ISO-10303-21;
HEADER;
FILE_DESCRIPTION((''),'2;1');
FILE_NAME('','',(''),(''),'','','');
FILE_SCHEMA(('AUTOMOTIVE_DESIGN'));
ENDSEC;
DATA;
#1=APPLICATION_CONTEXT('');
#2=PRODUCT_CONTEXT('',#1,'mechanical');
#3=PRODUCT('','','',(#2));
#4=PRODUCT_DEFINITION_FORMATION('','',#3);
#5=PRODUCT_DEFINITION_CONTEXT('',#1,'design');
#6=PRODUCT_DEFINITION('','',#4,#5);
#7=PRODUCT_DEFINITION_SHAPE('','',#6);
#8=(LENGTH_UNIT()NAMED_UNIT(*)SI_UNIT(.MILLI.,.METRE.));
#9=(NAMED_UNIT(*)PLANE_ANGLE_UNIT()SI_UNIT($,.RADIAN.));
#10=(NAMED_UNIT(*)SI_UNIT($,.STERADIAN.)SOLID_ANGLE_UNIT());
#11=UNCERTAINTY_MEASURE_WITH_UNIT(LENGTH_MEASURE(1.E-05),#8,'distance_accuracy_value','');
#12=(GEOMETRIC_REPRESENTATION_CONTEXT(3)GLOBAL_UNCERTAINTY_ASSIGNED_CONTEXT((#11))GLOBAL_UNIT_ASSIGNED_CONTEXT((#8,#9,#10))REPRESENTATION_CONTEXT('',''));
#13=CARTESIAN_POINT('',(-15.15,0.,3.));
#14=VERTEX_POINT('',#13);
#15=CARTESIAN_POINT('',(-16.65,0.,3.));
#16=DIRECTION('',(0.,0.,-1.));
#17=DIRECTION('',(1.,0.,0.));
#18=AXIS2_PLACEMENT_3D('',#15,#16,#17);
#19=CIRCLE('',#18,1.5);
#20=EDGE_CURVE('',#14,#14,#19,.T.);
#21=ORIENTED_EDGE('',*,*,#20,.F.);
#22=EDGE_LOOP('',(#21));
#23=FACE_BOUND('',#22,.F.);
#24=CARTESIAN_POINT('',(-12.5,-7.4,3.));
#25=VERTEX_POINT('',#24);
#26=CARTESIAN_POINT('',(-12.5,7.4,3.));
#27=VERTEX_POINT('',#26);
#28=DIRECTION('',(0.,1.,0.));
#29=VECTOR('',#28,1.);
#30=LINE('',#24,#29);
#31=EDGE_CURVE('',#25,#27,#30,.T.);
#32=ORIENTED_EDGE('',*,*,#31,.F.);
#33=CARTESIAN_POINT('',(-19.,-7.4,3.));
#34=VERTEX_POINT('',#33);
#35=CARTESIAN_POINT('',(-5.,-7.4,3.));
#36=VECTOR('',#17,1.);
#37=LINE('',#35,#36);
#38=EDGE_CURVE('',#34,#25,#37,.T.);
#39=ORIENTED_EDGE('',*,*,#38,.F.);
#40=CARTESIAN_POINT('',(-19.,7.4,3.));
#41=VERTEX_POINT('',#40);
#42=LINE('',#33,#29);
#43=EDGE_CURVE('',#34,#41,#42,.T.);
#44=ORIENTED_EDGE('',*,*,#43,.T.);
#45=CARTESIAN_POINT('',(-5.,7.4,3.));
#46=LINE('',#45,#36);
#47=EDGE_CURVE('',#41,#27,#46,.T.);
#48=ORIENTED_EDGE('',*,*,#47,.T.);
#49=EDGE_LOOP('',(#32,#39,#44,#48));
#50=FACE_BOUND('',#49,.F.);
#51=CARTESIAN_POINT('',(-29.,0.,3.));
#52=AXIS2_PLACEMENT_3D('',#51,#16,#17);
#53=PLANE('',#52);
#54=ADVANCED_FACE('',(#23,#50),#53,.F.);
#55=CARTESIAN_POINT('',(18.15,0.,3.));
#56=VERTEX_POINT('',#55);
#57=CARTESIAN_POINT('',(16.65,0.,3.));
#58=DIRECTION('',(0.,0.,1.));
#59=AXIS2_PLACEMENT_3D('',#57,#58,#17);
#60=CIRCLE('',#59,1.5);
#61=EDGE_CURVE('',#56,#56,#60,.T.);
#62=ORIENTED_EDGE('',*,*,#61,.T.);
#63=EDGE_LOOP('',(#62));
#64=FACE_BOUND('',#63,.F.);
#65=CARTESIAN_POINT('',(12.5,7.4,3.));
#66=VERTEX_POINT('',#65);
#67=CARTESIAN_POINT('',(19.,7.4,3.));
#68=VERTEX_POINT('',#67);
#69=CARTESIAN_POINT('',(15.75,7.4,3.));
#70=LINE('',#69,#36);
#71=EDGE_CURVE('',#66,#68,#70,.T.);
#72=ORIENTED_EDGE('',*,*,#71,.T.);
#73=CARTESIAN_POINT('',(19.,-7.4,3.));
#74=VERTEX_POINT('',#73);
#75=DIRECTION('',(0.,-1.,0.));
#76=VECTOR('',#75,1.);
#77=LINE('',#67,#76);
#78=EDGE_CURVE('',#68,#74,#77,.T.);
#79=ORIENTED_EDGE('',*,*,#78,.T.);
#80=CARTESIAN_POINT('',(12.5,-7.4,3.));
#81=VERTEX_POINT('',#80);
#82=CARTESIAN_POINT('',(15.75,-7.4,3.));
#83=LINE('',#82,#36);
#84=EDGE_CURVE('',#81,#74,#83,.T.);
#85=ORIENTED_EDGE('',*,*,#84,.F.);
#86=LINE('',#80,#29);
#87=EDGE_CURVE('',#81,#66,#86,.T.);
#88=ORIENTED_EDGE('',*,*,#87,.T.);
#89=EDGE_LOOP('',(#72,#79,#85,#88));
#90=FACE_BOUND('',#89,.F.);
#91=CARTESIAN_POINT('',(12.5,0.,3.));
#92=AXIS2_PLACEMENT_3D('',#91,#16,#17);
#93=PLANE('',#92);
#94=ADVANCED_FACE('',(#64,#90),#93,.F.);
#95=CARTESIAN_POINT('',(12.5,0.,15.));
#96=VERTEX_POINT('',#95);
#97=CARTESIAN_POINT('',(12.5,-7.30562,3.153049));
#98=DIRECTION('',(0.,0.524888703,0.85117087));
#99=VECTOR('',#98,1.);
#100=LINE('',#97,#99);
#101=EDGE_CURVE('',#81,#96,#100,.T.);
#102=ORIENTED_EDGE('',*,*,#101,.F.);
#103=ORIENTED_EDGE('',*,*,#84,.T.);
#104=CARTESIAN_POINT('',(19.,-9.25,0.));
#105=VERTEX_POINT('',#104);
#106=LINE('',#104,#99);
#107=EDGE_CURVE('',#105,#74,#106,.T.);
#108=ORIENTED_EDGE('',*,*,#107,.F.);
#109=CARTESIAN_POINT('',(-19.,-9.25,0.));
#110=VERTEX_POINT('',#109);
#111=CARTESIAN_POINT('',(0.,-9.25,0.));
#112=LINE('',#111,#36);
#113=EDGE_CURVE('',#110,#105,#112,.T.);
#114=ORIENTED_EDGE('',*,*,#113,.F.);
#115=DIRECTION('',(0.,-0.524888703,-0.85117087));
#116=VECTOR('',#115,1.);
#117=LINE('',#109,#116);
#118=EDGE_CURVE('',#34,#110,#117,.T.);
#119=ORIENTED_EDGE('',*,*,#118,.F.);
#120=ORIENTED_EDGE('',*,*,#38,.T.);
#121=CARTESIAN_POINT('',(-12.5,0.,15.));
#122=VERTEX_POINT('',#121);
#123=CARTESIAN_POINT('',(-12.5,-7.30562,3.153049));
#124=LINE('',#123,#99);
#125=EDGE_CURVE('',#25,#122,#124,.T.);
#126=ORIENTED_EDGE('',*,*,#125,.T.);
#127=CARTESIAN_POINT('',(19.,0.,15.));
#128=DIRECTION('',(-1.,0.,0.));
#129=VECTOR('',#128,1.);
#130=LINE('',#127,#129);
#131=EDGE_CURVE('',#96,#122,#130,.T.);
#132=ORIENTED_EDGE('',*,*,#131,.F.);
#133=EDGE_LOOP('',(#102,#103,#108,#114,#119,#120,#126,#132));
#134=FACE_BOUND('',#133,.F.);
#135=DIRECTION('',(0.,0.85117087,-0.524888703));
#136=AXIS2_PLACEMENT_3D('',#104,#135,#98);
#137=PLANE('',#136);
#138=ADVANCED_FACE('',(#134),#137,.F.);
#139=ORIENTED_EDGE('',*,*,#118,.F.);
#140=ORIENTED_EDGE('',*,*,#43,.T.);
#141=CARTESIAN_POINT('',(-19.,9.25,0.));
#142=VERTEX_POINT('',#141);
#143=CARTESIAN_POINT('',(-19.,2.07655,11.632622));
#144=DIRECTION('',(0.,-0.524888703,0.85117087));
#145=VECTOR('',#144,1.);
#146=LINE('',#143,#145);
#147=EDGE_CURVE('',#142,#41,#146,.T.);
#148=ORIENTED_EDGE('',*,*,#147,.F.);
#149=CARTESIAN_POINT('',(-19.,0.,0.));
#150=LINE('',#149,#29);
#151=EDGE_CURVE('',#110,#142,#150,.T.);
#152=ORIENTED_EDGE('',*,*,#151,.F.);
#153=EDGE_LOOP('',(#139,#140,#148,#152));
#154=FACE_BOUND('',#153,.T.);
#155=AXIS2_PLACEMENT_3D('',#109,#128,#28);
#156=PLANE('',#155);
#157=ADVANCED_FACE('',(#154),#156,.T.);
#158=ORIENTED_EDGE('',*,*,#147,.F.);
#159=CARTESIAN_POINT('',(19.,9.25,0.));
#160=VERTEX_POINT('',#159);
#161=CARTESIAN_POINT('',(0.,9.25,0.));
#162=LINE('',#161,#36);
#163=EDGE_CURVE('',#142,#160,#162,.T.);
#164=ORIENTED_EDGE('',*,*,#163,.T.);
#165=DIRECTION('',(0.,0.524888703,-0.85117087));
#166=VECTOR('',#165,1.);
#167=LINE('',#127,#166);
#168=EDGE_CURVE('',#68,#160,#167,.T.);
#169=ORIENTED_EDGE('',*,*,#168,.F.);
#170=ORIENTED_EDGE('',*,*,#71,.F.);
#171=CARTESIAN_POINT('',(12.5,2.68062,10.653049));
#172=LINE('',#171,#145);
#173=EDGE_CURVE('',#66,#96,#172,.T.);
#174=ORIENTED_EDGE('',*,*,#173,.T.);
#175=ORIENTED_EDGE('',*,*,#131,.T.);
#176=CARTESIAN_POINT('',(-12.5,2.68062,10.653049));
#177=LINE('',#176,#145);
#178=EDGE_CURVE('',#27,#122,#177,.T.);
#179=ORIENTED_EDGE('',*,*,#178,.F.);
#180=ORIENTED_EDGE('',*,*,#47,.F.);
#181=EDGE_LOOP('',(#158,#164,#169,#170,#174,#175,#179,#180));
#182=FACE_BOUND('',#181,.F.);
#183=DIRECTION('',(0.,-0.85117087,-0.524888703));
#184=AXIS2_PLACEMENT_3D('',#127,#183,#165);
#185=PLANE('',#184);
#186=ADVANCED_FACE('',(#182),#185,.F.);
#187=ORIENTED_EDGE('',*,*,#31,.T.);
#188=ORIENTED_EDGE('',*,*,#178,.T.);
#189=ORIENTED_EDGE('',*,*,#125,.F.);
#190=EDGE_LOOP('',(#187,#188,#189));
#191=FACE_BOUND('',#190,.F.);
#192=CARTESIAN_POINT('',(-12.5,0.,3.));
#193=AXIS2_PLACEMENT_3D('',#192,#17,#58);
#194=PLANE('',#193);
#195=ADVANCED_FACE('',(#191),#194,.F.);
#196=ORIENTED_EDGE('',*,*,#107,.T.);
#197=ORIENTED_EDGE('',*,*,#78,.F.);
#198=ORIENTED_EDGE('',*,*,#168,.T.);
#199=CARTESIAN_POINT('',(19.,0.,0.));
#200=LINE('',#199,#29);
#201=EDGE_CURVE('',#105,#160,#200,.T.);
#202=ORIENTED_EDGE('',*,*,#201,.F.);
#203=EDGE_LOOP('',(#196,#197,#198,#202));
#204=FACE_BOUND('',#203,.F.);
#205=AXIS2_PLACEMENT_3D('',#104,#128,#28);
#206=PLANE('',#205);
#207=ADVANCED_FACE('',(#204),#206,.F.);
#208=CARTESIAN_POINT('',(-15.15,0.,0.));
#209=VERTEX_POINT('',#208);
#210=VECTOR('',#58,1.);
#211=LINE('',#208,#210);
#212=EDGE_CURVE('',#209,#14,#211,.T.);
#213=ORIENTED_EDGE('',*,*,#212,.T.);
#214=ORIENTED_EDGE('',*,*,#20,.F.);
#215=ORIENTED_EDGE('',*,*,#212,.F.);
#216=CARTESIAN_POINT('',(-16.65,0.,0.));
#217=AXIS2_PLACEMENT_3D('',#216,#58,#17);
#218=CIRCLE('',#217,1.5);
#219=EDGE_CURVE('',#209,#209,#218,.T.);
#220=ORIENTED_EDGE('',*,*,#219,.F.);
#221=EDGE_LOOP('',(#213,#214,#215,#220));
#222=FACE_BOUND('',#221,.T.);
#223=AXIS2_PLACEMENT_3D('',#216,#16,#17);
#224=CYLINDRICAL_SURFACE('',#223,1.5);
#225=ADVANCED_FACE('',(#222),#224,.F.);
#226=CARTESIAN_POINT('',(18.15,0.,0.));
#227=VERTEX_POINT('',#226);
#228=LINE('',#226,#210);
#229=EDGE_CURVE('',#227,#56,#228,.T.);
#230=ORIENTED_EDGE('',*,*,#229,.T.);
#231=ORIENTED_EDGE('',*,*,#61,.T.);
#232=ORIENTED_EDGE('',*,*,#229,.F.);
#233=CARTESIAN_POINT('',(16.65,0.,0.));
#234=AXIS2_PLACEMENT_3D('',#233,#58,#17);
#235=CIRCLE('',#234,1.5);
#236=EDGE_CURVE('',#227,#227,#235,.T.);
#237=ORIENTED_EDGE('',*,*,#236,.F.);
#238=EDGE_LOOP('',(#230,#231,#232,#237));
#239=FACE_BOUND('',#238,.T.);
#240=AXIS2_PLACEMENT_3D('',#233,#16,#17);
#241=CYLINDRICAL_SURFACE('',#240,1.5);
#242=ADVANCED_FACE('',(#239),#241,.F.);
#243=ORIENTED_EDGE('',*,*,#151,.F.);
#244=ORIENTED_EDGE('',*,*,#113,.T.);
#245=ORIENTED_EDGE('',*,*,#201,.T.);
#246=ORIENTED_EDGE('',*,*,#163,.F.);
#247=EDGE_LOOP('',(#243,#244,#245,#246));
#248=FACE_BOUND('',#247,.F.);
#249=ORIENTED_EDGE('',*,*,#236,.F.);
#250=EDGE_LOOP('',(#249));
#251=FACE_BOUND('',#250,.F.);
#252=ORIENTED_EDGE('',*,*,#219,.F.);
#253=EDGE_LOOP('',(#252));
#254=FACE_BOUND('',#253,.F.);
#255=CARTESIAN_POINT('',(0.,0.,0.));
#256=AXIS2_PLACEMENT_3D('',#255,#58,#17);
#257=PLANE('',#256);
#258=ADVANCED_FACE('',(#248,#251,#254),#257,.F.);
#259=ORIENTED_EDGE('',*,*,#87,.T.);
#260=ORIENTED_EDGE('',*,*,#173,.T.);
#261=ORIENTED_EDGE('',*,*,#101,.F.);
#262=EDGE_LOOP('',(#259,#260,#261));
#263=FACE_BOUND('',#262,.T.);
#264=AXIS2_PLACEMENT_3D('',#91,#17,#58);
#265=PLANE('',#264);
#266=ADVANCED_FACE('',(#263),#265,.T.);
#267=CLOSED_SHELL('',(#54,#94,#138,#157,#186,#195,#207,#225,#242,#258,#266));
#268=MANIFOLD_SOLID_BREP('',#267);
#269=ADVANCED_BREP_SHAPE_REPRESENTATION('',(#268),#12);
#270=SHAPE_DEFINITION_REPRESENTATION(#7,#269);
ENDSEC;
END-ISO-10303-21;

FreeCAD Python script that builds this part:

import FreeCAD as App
import Part
import Sketcher


def add_polygon(sketch, points):
    """Adds a closed chain of lines whose ends are joined by coincident constraints."""
    first, n = sketch.GeometryCount, len(points)
    for a, b in zip(points, points[1:] + points[:1]):
        sketch.addGeometry(Part.LineSegment(App.Vector(*a, 0), App.Vector(*b, 0)), False)
    for i in range(n):
        sketch.addConstraint(Sketcher.Constraint("Coincident", first + i, 2, first + (i + 1) % n, 1))

doc = App.newDocument("Part")
params = doc.addObject("Spreadsheet::Sheet", "Params")
for row, (alias, value) in enumerate([
    ("sketch1_diameter", "3 mm"),
    ("sketch1_width", "38 mm"),
    ("sketch1_height", "18.5 mm"),
    ("pad1_length", "15 mm"),
    ("sketch2_height", "15 mm"),
    ("sketch2_width", "9.25 mm"),
    ("sketch3_height", "12 mm"),
    ("sketch3_width", "16.5 mm"),
], start=1):
    params.set(f"A{row}", alias)
    params.set(f"B{row}", "=" + value)
    params.setAlias(f"B{row}", alias)

body = doc.addObject("PartDesign::Body", "Body")

# Sketch on XY plane
sketch1 = body.newObject("Sketcher::SketchObject", "Sketch")
sketch1.AttachmentSupport = (doc.getObject("XY_Plane"), [""])
sketch1.MapMode = "FlatFace"
add_polygon(sketch1, [(-19, 9.2), (-19, -9.2), (19, -9.2), (19, 9.2)])  # lines 0-3
sketch1.addGeometry(Part.Circle(App.Vector(-16.6, 0, 0), App.Vector(0, 0, 1), 1.5), False)  # 4
sketch1.addGeometry(Part.Circle(App.Vector(16.6, 0, 0), App.Vector(0, 0, 1), 1.5), False)  # 5
sketch1.addConstraint(Sketcher.Constraint("Vertical", 0))
sketch1.addConstraint(Sketcher.Constraint("Horizontal", 1))
sketch1.addConstraint(Sketcher.Constraint("Vertical", 2))
sketch1.addConstraint(Sketcher.Constraint("Horizontal", 3))
sketch1.addConstraint(Sketcher.Constraint("Equal", 4, 5))
sketch1.addConstraint(Sketcher.Constraint("Symmetric", 4, 3, 5, 3, -1, 1))
sketch1.addConstraint(Sketcher.Constraint("Symmetric", 0, 2, 2, 2, -1, 1))
sketch1.addConstraint(Sketcher.Constraint("PointOnObject", 4, 3, -1))
sketch1.addConstraint(Sketcher.Constraint("Diameter", 4, 3.0))
sketch1.addConstraint(Sketcher.Constraint("DistanceX", 1, 1, 1, 2, 38.0))
sketch1.addConstraint(Sketcher.Constraint("DistanceY", 0, 2, 0, 1, 18.5))
sketch1.addConstraint(Sketcher.Constraint("DistanceX", 4, 3, 5, 3, 33.3))
sketch1.setExpression("Constraints[12]", "Params.sketch1_diameter")
sketch1.setExpression("Constraints[13]", "Params.sketch1_width")
sketch1.setExpression("Constraints[14]", "Params.sketch1_height")
pad1 = body.newObject("PartDesign::Pad", "Pad")
pad1.Profile = sketch1
pad1.setExpression("Length", "Params.pad1_length")

# Sketch on YZ plane
sketch2 = body.newObject("Sketcher::SketchObject", "Sketch001")
sketch2.AttachmentSupport = (doc.getObject("YZ_Plane"), [""])
sketch2.MapMode = "FlatFace"
sketch2.AttachmentOffset = App.Placement(App.Vector(0, 0, 19), App.Rotation())
add_polygon(sketch2, [(-9, 15), (-9, 0), (0, 15)])  # lines 0-2
add_polygon(sketch2, [(9, 15), (0, 15), (9, 0)])  # lines 3-5
sketch2.addConstraint(Sketcher.Constraint("Vertical", 0))
sketch2.addConstraint(Sketcher.Constraint("Horizontal", 2))
sketch2.addConstraint(Sketcher.Constraint("Horizontal", 3))
sketch2.addConstraint(Sketcher.Constraint("Vertical", 5))
sketch2.addConstraint(Sketcher.Constraint("Coincident", 3, 2, 1, 2))
sketch2.addConstraint(Sketcher.Constraint("Symmetric", 0, 2, 4, 2, -1, 1))
sketch2.addConstraint(Sketcher.Constraint("PointOnObject", 0, 2, -1))
sketch2.addConstraint(Sketcher.Constraint("PointOnObject", 1, 2, -2))
sketch2.addConstraint(Sketcher.Constraint("DistanceY", 0, 2, 0, 1, 15.0))
sketch2.addConstraint(Sketcher.Constraint("DistanceX", 2, 2, 2, 1, 9.25))
sketch2.setExpression("Constraints[14]", "Params.sketch2_height")
sketch2.setExpression("Constraints[15]", "Params.sketch2_width")
pocket1 = body.newObject("PartDesign::Pocket", "Pocket")
pocket1.Profile = sketch2
pocket1.Type = "ThroughAll"

# Sketch on XZ plane
sketch3 = body.newObject("Sketcher::SketchObject", "Sketch002")
sketch3.AttachmentSupport = (doc.getObject("XZ_Plane"), [""])
sketch3.MapMode = "FlatFace"
add_polygon(sketch3, [(-29, 15), (-29, 3), (-12, 3), (-12, 15)])  # lines 0-3
add_polygon(sketch3, [(12, 15), (12, 3), (29, 3), (29, 15)])  # lines 4-7
sketch3.addConstraint(Sketcher.Constraint("Vertical", 0))
sketch3.addConstraint(Sketcher.Constraint("Horizontal", 1))
sketch3.addConstraint(Sketcher.Constraint("Vertical", 2))
sketch3.addConstraint(Sketcher.Constraint("Horizontal", 3))
sketch3.addConstraint(Sketcher.Constraint("Vertical", 4))
sketch3.addConstraint(Sketcher.Constraint("Horizontal", 5))
sketch3.addConstraint(Sketcher.Constraint("Vertical", 6))
sketch3.addConstraint(Sketcher.Constraint("Horizontal", 7))
sketch3.addConstraint(Sketcher.Constraint("Symmetric", 1, 2, 4, 2, -2))
sketch3.addConstraint(Sketcher.Constraint("Symmetric", 3, 2, 6, 2, -2))
sketch3.addConstraint(Sketcher.Constraint("DistanceY", 0, 2, 0, 1, 12.0))
sketch3.addConstraint(Sketcher.Constraint("DistanceX", 1, 1, 1, 2, 16.5))
sketch3.addConstraint(Sketcher.Constraint("DistanceX", 0, 2, -1, 1, 29.0))
sketch3.addConstraint(Sketcher.Constraint("DistanceY", -1, 1, 0, 2, 3.0))
sketch3.setExpression("Constraints[18]", "Params.sketch3_height")
sketch3.setExpression("Constraints[19]", "Params.sketch3_width")
pocket2 = body.newObject("PartDesign::Pocket", "Pocket001")
pocket2.Profile = sketch3
pocket2.Type = "ThroughAll"
pocket2.Midplane = True

doc.recompute()
